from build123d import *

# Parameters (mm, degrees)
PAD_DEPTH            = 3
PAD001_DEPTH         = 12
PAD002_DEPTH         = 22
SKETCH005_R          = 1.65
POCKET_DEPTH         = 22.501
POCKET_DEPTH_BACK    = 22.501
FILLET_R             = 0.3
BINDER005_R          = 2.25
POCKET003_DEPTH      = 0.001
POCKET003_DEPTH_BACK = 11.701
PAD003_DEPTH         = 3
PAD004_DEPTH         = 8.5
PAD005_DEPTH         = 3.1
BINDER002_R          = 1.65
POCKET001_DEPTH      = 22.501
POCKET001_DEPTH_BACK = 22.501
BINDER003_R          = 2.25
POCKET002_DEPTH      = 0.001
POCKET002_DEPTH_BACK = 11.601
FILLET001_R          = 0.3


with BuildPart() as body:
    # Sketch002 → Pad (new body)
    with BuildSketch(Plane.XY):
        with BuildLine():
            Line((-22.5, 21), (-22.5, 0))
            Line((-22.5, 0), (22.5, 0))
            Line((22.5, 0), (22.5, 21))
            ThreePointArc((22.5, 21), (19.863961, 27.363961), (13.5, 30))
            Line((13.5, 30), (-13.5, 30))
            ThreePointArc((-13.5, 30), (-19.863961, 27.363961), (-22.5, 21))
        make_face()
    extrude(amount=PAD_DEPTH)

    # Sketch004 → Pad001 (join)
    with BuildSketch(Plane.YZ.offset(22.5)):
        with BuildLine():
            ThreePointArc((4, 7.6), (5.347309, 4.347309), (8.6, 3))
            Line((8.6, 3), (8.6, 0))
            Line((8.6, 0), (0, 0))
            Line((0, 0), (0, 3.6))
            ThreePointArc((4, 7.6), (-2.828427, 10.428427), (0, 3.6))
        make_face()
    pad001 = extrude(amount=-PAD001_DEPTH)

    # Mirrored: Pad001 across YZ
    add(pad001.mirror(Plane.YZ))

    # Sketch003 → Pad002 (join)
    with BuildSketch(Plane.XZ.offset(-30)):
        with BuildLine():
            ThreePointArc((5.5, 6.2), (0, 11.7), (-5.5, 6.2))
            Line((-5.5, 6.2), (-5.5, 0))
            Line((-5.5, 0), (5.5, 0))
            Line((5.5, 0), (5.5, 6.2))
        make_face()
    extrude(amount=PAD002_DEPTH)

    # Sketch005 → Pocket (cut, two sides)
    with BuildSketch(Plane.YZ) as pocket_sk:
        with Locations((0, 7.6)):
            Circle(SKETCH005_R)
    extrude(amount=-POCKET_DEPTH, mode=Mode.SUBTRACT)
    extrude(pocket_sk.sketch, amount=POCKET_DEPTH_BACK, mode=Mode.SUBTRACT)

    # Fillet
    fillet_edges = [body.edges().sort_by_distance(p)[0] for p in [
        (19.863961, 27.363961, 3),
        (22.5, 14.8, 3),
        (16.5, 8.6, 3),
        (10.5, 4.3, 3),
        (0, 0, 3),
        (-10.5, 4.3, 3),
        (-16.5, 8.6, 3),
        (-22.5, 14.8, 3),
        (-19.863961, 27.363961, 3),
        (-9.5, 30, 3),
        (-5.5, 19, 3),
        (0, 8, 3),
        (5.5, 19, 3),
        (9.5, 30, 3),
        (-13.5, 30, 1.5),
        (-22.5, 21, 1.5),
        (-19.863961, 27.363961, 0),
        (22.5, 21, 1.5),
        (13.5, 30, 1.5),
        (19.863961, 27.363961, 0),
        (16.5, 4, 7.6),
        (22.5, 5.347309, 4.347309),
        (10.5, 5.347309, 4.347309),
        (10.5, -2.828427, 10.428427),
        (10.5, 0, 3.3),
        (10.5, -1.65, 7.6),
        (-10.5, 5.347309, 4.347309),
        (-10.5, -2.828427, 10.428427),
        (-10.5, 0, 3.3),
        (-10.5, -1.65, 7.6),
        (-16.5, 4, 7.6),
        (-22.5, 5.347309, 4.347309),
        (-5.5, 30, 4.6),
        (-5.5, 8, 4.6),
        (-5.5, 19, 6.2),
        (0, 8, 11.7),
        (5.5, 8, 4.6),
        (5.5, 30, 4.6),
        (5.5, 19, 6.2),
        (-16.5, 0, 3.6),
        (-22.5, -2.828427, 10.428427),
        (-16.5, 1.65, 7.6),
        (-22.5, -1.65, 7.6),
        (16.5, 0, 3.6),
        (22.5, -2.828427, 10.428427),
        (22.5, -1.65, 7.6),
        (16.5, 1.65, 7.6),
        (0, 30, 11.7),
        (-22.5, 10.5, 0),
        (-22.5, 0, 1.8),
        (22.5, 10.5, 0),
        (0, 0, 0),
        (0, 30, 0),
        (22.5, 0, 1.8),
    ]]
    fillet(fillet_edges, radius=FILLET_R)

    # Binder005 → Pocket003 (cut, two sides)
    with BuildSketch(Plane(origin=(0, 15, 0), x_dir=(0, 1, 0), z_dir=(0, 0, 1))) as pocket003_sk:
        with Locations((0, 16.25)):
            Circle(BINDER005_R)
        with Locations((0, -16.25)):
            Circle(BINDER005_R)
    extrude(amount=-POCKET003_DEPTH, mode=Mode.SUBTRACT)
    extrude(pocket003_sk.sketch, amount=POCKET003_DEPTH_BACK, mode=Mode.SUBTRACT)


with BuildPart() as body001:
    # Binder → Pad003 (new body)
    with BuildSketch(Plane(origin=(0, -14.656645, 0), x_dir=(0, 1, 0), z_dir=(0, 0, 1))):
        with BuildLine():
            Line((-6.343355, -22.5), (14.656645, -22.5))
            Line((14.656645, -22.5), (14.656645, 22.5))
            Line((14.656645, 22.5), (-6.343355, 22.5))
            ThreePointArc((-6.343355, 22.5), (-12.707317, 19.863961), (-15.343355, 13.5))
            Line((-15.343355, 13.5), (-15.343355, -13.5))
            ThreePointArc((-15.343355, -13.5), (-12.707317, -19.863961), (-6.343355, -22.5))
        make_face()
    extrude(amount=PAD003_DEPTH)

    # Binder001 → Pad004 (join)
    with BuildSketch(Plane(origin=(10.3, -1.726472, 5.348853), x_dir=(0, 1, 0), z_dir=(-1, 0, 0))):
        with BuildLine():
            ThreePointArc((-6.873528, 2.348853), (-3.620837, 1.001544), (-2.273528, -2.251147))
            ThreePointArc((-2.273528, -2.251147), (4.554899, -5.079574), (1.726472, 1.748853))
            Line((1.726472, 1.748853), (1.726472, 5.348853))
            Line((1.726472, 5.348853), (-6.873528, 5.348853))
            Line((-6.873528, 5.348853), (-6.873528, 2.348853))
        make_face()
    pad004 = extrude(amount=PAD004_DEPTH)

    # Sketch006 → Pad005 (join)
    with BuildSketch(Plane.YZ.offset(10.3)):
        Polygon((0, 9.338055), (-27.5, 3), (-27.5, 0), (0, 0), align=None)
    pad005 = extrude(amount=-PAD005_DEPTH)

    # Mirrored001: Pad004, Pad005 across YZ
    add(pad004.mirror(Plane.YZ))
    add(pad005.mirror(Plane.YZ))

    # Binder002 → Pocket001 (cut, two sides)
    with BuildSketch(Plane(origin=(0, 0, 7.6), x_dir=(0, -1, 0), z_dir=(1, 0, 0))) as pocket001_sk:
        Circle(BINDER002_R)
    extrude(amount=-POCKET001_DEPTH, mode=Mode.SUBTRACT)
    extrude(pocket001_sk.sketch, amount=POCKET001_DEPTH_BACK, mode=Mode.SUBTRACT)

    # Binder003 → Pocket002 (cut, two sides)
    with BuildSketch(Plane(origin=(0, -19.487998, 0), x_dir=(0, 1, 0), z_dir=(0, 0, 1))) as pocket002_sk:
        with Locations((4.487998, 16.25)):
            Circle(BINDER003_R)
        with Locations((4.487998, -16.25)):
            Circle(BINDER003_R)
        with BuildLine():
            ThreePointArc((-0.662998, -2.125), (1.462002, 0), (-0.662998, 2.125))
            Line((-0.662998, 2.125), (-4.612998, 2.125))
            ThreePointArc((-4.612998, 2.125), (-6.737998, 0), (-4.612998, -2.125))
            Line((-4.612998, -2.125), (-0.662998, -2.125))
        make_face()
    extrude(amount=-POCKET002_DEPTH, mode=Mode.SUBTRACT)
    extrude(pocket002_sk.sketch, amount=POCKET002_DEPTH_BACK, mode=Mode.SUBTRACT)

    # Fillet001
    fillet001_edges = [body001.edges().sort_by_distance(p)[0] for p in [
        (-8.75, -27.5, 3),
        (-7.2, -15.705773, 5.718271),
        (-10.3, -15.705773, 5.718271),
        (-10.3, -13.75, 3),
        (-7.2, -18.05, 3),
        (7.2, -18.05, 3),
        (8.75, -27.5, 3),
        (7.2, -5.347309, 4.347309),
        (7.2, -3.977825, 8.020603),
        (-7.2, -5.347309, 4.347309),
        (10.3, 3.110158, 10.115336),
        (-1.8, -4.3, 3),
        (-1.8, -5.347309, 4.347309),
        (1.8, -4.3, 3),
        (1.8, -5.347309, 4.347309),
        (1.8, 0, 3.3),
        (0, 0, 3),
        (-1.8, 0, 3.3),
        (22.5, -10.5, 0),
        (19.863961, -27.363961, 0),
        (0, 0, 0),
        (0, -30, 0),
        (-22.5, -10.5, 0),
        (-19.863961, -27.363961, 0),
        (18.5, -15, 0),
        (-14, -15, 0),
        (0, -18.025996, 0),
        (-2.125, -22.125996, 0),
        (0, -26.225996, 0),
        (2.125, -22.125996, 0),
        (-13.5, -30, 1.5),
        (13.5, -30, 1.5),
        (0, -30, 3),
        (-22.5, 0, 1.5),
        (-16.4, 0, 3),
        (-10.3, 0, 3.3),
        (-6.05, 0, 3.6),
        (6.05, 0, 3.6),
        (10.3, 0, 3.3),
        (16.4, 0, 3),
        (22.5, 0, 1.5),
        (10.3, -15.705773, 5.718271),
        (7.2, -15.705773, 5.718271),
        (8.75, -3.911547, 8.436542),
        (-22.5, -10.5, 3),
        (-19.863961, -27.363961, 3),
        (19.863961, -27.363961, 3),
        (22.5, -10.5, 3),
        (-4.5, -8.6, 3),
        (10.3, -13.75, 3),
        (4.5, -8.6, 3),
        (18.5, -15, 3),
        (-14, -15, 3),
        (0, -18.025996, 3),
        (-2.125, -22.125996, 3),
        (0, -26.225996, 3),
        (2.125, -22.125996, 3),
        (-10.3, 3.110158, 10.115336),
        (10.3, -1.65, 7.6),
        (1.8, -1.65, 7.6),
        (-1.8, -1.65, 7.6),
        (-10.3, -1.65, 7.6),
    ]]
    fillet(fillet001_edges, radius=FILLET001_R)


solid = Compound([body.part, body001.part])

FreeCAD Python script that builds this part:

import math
import FreeCAD as App
import Part
import Sketcher
Q = App.Units.Quantity


def edges_at(feature, points):
    """Names of the edges that pass closest to the given points."""
    edges = feature.Shape.Edges
    near = lambda p: min(range(len(edges)), key=lambda i: edges[i].distToShape(Part.Vertex(*p))[0])
    return sorted({f"Edge{near(p) + 1}" for p in points})


def add_polygon(sketch, points):
    """Adds a closed chain of lines whose ends are joined by coincident constraints."""
    first, n = sketch.GeometryCount, len(points)
    for a, b in zip(points, points[1:] + points[:1]):
        sketch.addGeometry(Part.LineSegment(App.Vector(*a, 0), App.Vector(*b, 0)), False)
    for i in range(n):
        sketch.addConstraint(Sketcher.Constraint("Coincident", first + i, 2, first + (i + 1) % n, 1))

doc = App.newDocument("Part")
params = doc.addObject("Spreadsheet::Sheet", "Params")
for row, (alias, value) in enumerate([
    ("sketch1_radius", "9 mm"),
    ("sketch1_width", "45 mm"),
    ("sketch1_height", "21 mm"),
    ("pad1_length", "3 mm"),
    ("sketch2_radius", "4 mm"),
    ("sketch2_radius2", "4.600001 mm"),
    ("sketch2_height", "3 mm"),
    ("pad2_length", "12 mm"),
    ("sketch3_radius", "5.5 mm"),
    ("sketch3_height", "6.2 mm"),
    ("pad3_length", "22 mm"),
    ("sketch4_diameter", "3.3 mm"),
    ("fillet_radius", "0.3 mm"),
    ("sketch5_diameter", "4.5 mm"),
    ("sketch6_radius", "8.999998 mm"),
    ("sketch6_width", "45 mm"),
    ("sketch6_height", "21 mm"),
    ("pad4_length", "3 mm"),
    ("sketch7_radius", "4 mm"),
    ("sketch7_radius2", "4.600001 mm"),
    ("sketch7_height", "3 mm"),
    ("pad5_length", "8.5 mm"),
    ("sketch8_height", "3 mm"),
    ("sketch8_width", "27.5 mm"),
    ("pad6_length", "3.1 mm"),
    ("sketch9_diameter", "3.3 mm"),
    ("sketch10_diameter", "4.5 mm"),
    ("sketch10_height", "3.95 mm"),
    ("fillet2_radius", "0.3 mm"),
], start=1):
    params.set(f"A{row}", alias)
    params.set(f"B{row}", "=" + value)
    params.setAlias(f"B{row}", alias)

body = doc.addObject("PartDesign::Body", "Body")

# Sketch on XY plane
sketch1 = doc.addObject("Sketcher::SketchObject", "Sketch")
body.addObject(sketch1)
sketch1.AttachmentSupport = (doc.XY_Plane, [""])
sketch1.MapMode = "FlatFace"
sketch1.addGeometry(Part.LineSegment(App.Vector(-22, 21, 0), App.Vector(-22, 0, 0)), False)
sketch1.addGeometry(Part.LineSegment(App.Vector(-22, 0, 0), App.Vector(22, 0, 0)), False)
sketch1.addGeometry(Part.LineSegment(App.Vector(22, 0, 0), App.Vector(22, 21, 0)), False)
sketch1.addGeometry(Part.ArcOfCircle(Part.Circle(App.Vector(13, 21, 0), App.Vector(0, 0, 1), 9), math.radians(0), math.radians(90)), False)
sketch1.addGeometry(Part.LineSegment(App.Vector(14, 30, 0), App.Vector(-14, 30, 0)), False)
sketch1.addGeometry(Part.ArcOfCircle(Part.Circle(App.Vector(-13, 21, 0), App.Vector(0, 0, 1), 9), math.radians(90), math.radians(180)), False)
sketch1.addConstraint(Sketcher.Constraint("Coincident", 0, 2, 1, 1))
sketch1.addConstraint(Sketcher.Constraint("Coincident", 1, 2, 2, 1))
sketch1.addConstraint(Sketcher.Constraint("Tangent", 2, 2, 3, 1))
sketch1.addConstraint(Sketcher.Constraint("Tangent", 3, 2, 4, 1))
sketch1.addConstraint(Sketcher.Constraint("Tangent", 4, 2, 5, 1))
sketch1.addConstraint(Sketcher.Constraint("Tangent", 5, 2, 0, 1))
sketch1.addConstraint(Sketcher.Constraint("Vertical", 0))
sketch1.addConstraint(Sketcher.Constraint("Horizontal", 1))
sketch1.addConstraint(Sketcher.Constraint("Vertical", 2))
sketch1.addConstraint(Sketcher.Constraint("Horizontal", 4))
sketch1.addConstraint(Sketcher.Constraint("Equal", 3, 5))
sketch1.addConstraint(Sketcher.Constraint("Symmetric", 0, 2, 1, 2, -1, 1))
sketch1.addConstraint(Sketcher.Constraint("Radius", 3, Q("9 mm")))
sketch1.addConstraint(Sketcher.Constraint("DistanceX", 1, 1, 1, 2, Q("45 mm")))
sketch1.addConstraint(Sketcher.Constraint("DistanceY", 0, 2, 0, 1, Q("21 mm")))
sketch1.setExpression("Constraints[12]", "Params.sketch1_radius")
sketch1.setExpression("Constraints[13]", "Params.sketch1_width")
sketch1.setExpression("Constraints[14]", "Params.sketch1_height")
pad1 = doc.addObject("PartDesign::Pad", "Pad")
body.addObject(pad1)
pad1.Profile = sketch1
pad1.setExpression("Length", "Params.pad1_length")

# Sketch on YZ plane
sketch2 = doc.addObject("Sketcher::SketchObject", "Sketch001")
body.addObject(sketch2)
sketch2.AttachmentSupport = (doc.YZ_Plane, [""])
sketch2.MapMode = "FlatFace"
sketch2.AttachmentOffset = App.Placement(App.Vector(0, 0, 22.5), App.Rotation())
sketch2.addGeometry(Part.ArcOfCircle(Part.Circle(App.Vector(8.6, 7.6, 0), App.Vector(0, 0, 1), 4.6), math.radians(-180), math.radians(-90)), False)
sketch2.addGeometry(Part.ArcOfCircle(Part.Circle(App.Vector(0, 7.6, 0), App.Vector(0, 0, 1), 4), math.radians(0), math.radians(270)), False)
sketch2.addGeometry(Part.LineSegment(App.Vector(0, 3.6, 0), App.Vector(0, 0, 0)), False)
sketch2.addGeometry(Part.LineSegment(App.Vector(0, 0, 0), App.Vector(8.6, 0, 0)), False)
sketch2.addGeometry(Part.LineSegment(App.Vector(8.6, 0, 0), App.Vector(8.6, 3, 0)), False)
sketch2.addConstraint(Sketcher.Constraint("Tangent", 0, 1, 1, 1))
sketch2.addConstraint(Sketcher.Constraint("Coincident", 1, 2, 2, 1))
sketch2.addConstraint(Sketcher.Constraint("Coincident", 2, 2, 3, 1))
sketch2.addConstraint(Sketcher.Constraint("Coincident", 3, 2, 4, 1))
sketch2.addConstraint(Sketcher.Constraint("Coincident", 4, 2, 0, 2))
sketch2.addConstraint(Sketcher.Constraint("Vertical", 2))
sketch2.addConstraint(Sketcher.Constraint("Horizontal", 3))
sketch2.addConstraint(Sketcher.Constraint("Vertical", 4))
sketch2.addConstraint(Sketcher.Constraint("Coincident", 2, 2, -1, 1))
sketch2.addConstraint(Sketcher.Constraint("PointOnObject", 1, 3, -2))
sketch2.addConstraint(Sketcher.Constraint("Horizontal", 0, 3, 1, 3))
sketch2.addConstraint(Sketcher.Constraint("Vertical", 0, 3, 3, 2))
sketch2.addConstraint(Sketcher.Constraint("Radius", 1, Q("4 mm")))
sketch2.addConstraint(Sketcher.Constraint("Radius", 0, Q("4.600001 mm")))
sketch2.addConstraint(Sketcher.Constraint("DistanceY", 4, 1, 4, 2, Q("3 mm")))
sketch2.setExpression("Constraints[12]", "Params.sketch2_radius")
sketch2.setExpression("Constraints[13]", "Params.sketch2_radius2")
sketch2.setExpression("Constraints[14]", "Params.sketch2_height")
pad2 = doc.addObject("PartDesign::Pad", "Pad001")
body.addObject(pad2)
pad2.Profile = sketch2
pad2.setExpression("Length", "Params.pad2_length")
pad2.Reversed = True
doc.recompute()

mirrored = doc.addObject("PartDesign::Mirrored", "Mirrored")
body.addObject(mirrored)
mirrored.Originals = [pad2]
mirrored.MirrorPlane = (doc.YZ_Plane, [""])
body.Tip = mirrored

# Sketch on XZ plane
sketch3 = doc.addObject("Sketcher::SketchObject", "Sketch002")
body.addObject(sketch3)
sketch3.AttachmentSupport = (doc.XZ_Plane, [""])
sketch3.MapMode = "FlatFace"
sketch3.AttachmentOffset = App.Placement(App.Vector(0, 0, -30), App.Rotation())
sketch3.addGeometry(Part.ArcOfCircle(Part.Circle(App.Vector(0, 6, 0), App.Vector(0, 0, 1), 6), math.radians(0), math.radians(180)), False)
sketch3.addGeometry(Part.LineSegment(App.Vector(-6, 6, 0), App.Vector(-6, 0, 0)), False)
sketch3.addGeometry(Part.LineSegment(App.Vector(-6, 0, 0), App.Vector(6, 0, 0)), False)
sketch3.addGeometry(Part.LineSegment(App.Vector(6, 0, 0), App.Vector(6, 6, 0)), False)
sketch3.addConstraint(Sketcher.Constraint("Tangent", 0, 2, 1, 1))
sketch3.addConstraint(Sketcher.Constraint("Coincident", 1, 2, 2, 1))
sketch3.addConstraint(Sketcher.Constraint("Coincident", 2, 2, 3, 1))
sketch3.addConstraint(Sketcher.Constraint("Tangent", 3, 2, 0, 1))
sketch3.addConstraint(Sketcher.Constraint("Vertical", 1))
sketch3.addConstraint(Sketcher.Constraint("Horizontal", 2))
sketch3.addConstraint(Sketcher.Constraint("Vertical", 3))
sketch3.addConstraint(Sketcher.Constraint("Symmetric", 1, 2, 2, 2, -1, 1))
sketch3.addConstraint(Sketcher.Constraint("Radius", 0, Q("5.5 mm")))
sketch3.addConstraint(Sketcher.Constraint("DistanceY", 1, 2, 1, 1, Q("6.2 mm")))
sketch3.setExpression("Constraints[8]", "Params.sketch3_radius")
sketch3.setExpression("Constraints[9]", "Params.sketch3_height")
pad3 = doc.addObject("PartDesign::Pad", "Pad002")
body.addObject(pad3)
pad3.Profile = sketch3
pad3.setExpression("Length", "Params.pad3_length")

# Sketch on YZ plane
sketch4 = doc.addObject("Sketcher::SketchObject", "Sketch003")
body.addObject(sketch4)
sketch4.AttachmentSupport = (doc.YZ_Plane, [""])
sketch4.MapMode = "FlatFace"
sketch4.addGeometry(Part.Circle(App.Vector(0, 7.6, 0), App.Vector(0, 0, 1), 1.6), False)
sketch4.addConstraint(Sketcher.Constraint("PointOnObject", 0, 3, -2))
sketch4.addConstraint(Sketcher.Constraint("Diameter", 0, Q("3.3 mm")))
sketch4.addConstraint(Sketcher.Constraint("DistanceY", -1, 1, 0, 3, Q("7.6 mm")))
sketch4.setExpression("Constraints[1]", "Params.sketch4_diameter")
pocket1 = doc.addObject("PartDesign::Pocket", "Pocket")
body.addObject(pocket1)
pocket1.Profile = sketch4
pocket1.Type = "ThroughAll"
pocket1.Midplane = True
doc.recompute()

fillet = doc.addObject("PartDesign::Fillet", "Fillet")
body.addObject(fillet)
fillet.Base = (pocket1, ["Edge1"])
fillet.UseAllEdges = True
fillet.setExpression("Radius", "Params.fillet_radius")

# Sketch on XY plane
sketch5 = doc.addObject("Sketcher::SketchObject", "Sketch004")
body.addObject(sketch5)
sketch5.AttachmentSupport = (doc.XY_Plane, [""])
sketch5.MapMode = "FlatFace"
sketch5.addGeometry(Part.Circle(App.Vector(-16.2, 15, 0), App.Vector(0, 0, 1), 2.2), False)
sketch5.addGeometry(Part.Circle(App.Vector(16.2, 15, 0), App.Vector(0, 0, 1), 2.2), False)
sketch5.addConstraint(Sketcher.Constraint("Equal", 0, 1))
sketch5.addConstraint(Sketcher.Constraint("Symmetric", 0, 3, 1, 3, -2))
sketch5.addConstraint(Sketcher.Constraint("Diameter", 0, Q("4.5 mm")))
sketch5.addConstraint(Sketcher.Constraint("DistanceY", -1, 1, 0, 3, Q("15 mm")))
sketch5.addConstraint(Sketcher.Constraint("DistanceX", 0, 3, 1, 3, Q("32.5 mm")))
sketch5.setExpression("Constraints[2]", "Params.sketch5_diameter")
pocket2 = doc.addObject("PartDesign::Pocket", "Pocket001")
body.addObject(pocket2)
pocket2.Profile = sketch5
pocket2.Type = "ThroughAll"
pocket2.Midplane = True
body2 = doc.addObject("PartDesign::Body", "Body001")

# Sketch on XY plane
sketch6 = doc.addObject("Sketcher::SketchObject", "Sketch005")
body2.addObject(sketch6)
sketch6.AttachmentSupport = (doc.getObject("XY_Plane001"), [""])
sketch6.MapMode = "FlatFace"
sketch6.addGeometry(Part.LineSegment(App.Vector(22, -21, 0), App.Vector(22, 0, 0)), False)
sketch6.addGeometry(Part.LineSegment(App.Vector(22, 0, 0), App.Vector(-22, 0, 0)), False)
sketch6.addGeometry(Part.LineSegment(App.Vector(-22, 0, 0), App.Vector(-22, -21, 0)), False)
sketch6.addGeometry(Part.ArcOfCircle(Part.Circle(App.Vector(-14, -21, 0), App.Vector(0, 0, 1), 9), math.radians(180), math.radians(270)), False)
sketch6.addGeometry(Part.LineSegment(App.Vector(-14, -30, 0), App.Vector(14, -30, 0)), False)
sketch6.addGeometry(Part.ArcOfCircle(Part.Circle(App.Vector(14, -21, 0), App.Vector(0, 0, 1), 9), math.radians(-90), math.radians(0)), False)
sketch6.addConstraint(Sketcher.Constraint("Coincident", 0, 2, 1, 1))
sketch6.addConstraint(Sketcher.Constraint("Coincident", 1, 2, 2, 1))
sketch6.addConstraint(Sketcher.Constraint("Tangent", 2, 2, 3, 1))
sketch6.addConstraint(Sketcher.Constraint("Tangent", 3, 2, 4, 1))
sketch6.addConstraint(Sketcher.Constraint("Tangent", 4, 2, 5, 1))
sketch6.addConstraint(Sketcher.Constraint("Tangent", 5, 2, 0, 1))
sketch6.addConstraint(Sketcher.Constraint("Vertical", 0))
sketch6.addConstraint(Sketcher.Constraint("Horizontal", 1))
sketch6.addConstraint(Sketcher.Constraint("Vertical", 2))
sketch6.addConstraint(Sketcher.Constraint("Horizontal", 4))
sketch6.addConstraint(Sketcher.Constraint("Equal", 3, 5))
sketch6.addConstraint(Sketcher.Constraint("Symmetric", 0, 2, 1, 2, -1, 1))
sketch6.addConstraint(Sketcher.Constraint("Radius", 3, Q("8.999998 mm")))
sketch6.addConstraint(Sketcher.Constraint("DistanceX", 1, 2, 1, 1, Q("45 mm")))
sketch6.addConstraint(Sketcher.Constraint("DistanceY", 0, 1, 0, 2, Q("21 mm")))
sketch6.setExpression("Constraints[12]", "Params.sketch6_radius")
sketch6.setExpression("Constraints[13]", "Params.sketch6_width")
sketch6.setExpression("Constraints[14]", "Params.sketch6_height")
pad4 = doc.addObject("PartDesign::Pad", "Pad003")
body2.addObject(pad4)
pad4.Profile = sketch6
pad4.setExpression("Length", "Params.pad4_length")

# Sketch on YZ plane
sketch7 = doc.addObject("Sketcher::SketchObject", "Sketch006")
body2.addObject(sketch7)
sketch7.AttachmentSupport = (doc.getObject("YZ_Plane001"), [""])
sketch7.MapMode = "FlatFace"
sketch7.AttachmentOffset = App.Placement(App.Vector(0, 0, 10.3), App.Rotation())
sketch7.addGeometry(Part.ArcOfCircle(Part.Circle(App.Vector(-8.6, 7.6, 0), App.Vector(0, 0, 1), 4.6), math.radians(-90), math.radians(0)), False)
sketch7.addGeometry(Part.ArcOfCircle(Part.Circle(App.Vector(0, 7.6, 0), App.Vector(0, 0, 1), 4), math.radians(-90), math.radians(180)), False)
sketch7.addGeometry(Part.LineSegment(App.Vector(0, 3.6, 0), App.Vector(0, 0, 0)), False)
sketch7.addGeometry(Part.LineSegment(App.Vector(0, 0, 0), App.Vector(-8.6, 0, 0)), False)
sketch7.addGeometry(Part.LineSegment(App.Vector(-8.6, 0, 0), App.Vector(-8.6, 3, 0)), False)
sketch7.addConstraint(Sketcher.Constraint("Tangent", 0, 2, 1, 2))
sketch7.addConstraint(Sketcher.Constraint("Coincident", 1, 1, 2, 1))
sketch7.addConstraint(Sketcher.Constraint("Coincident", 2, 2, 3, 1))
sketch7.addConstraint(Sketcher.Constraint("Coincident", 3, 2, 4, 1))
sketch7.addConstraint(Sketcher.Constraint("Coincident", 4, 2, 0, 1))
sketch7.addConstraint(Sketcher.Constraint("Vertical", 2))
sketch7.addConstraint(Sketcher.Constraint("Horizontal", 3))
sketch7.addConstraint(Sketcher.Constraint("Vertical", 4))
sketch7.addConstraint(Sketcher.Constraint("Coincident", 2, 2, -1, 1))
sketch7.addConstraint(Sketcher.Constraint("PointOnObject", 1, 3, -2))
sketch7.addConstraint(Sketcher.Constraint("Horizontal", 0, 3, 1, 3))
sketch7.addConstraint(Sketcher.Constraint("Vertical", 0, 3, 3, 2))
sketch7.addConstraint(Sketcher.Constraint("Radius", 1, Q("4 mm")))
sketch7.addConstraint(Sketcher.Constraint("Radius", 0, Q("4.600001 mm")))
sketch7.addConstraint(Sketcher.Constraint("DistanceY", 4, 1, 4, 2, Q("3 mm")))
sketch7.setExpression("Constraints[12]", "Params.sketch7_radius")
sketch7.setExpression("Constraints[13]", "Params.sketch7_radius2")
sketch7.setExpression("Constraints[14]", "Params.sketch7_height")
pad5 = doc.addObject("PartDesign::Pad", "Pad004")
body2.addObject(pad5)
pad5.Profile = sketch7
pad5.setExpression("Length", "Params.pad5_length")
pad5.Reversed = True

# Sketch on YZ plane
sketch8 = doc.addObject("Sketcher::SketchObject", "Sketch007")
body2.addObject(sketch8)
sketch8.AttachmentSupport = (doc.getObject("YZ_Plane001"), [""])
sketch8.MapMode = "FlatFace"
sketch8.AttachmentOffset = App.Placement(App.Vector(0, 0, 10.3), App.Rotation())
add_polygon(sketch8, [(0, 9.3), (-27.5, 3), (-27.5, 0), (0, 0)])  # lines 0-3
sketch8.addConstraint(Sketcher.Constraint("Vertical", 1))
sketch8.addConstraint(Sketcher.Constraint("Horizontal", 2))
sketch8.addConstraint(Sketcher.Constraint("Vertical", 3))
sketch8.addConstraint(Sketcher.Constraint("Coincident", 2, 2, -1, 1))
sketch8.addConstraint(Sketcher.Constraint("DistanceY", 1, 2, 1, 1, Q("3 mm")))
sketch8.addConstraint(Sketcher.Constraint("DistanceX", 2, 1, 2, 2, Q("27.5 mm")))
sketch8.addConstraint(Sketcher.Constraint("Distance", 0, Q("28.220931 mm")))
sketch8.setExpression("Constraints[8]", "Params.sketch8_height")
sketch8.setExpression("Constraints[9]", "Params.sketch8_width")
pad6 = doc.addObject("PartDesign::Pad", "Pad005")
body2.addObject(pad6)
pad6.Profile = sketch8
pad6.setExpression("Length", "Params.pad6_length")
pad6.Reversed = True
doc.recompute()

mirrored2 = doc.addObject("PartDesign::Mirrored", "Mirrored001")
body2.addObject(mirrored2)
mirrored2.Originals = [pad5, pad6]
mirrored2.MirrorPlane = (doc.getObject("YZ_Plane001"), [""])
body2.Tip = mirrored2

# Sketch on YZ plane
sketch9 = doc.addObject("Sketcher::SketchObject", "Sketch008")
body2.addObject(sketch9)
sketch9.AttachmentSupport = (doc.getObject("YZ_Plane001"), [""])
sketch9.MapMode = "FlatFace"
sketch9.addGeometry(Part.Circle(App.Vector(0, 7.6, 0), App.Vector(0, 0, 1), 1.6), False)
sketch9.addConstraint(Sketcher.Constraint("PointOnObject", 0, 3, -2))
sketch9.addConstraint(Sketcher.Constraint("Diameter", 0, Q("3.3 mm")))
sketch9.addConstraint(Sketcher.Constraint("DistanceY", -1, 1, 0, 3, Q("7.6 mm")))
sketch9.setExpression("Constraints[1]", "Params.sketch9_diameter")
pocket3 = doc.addObject("PartDesign::Pocket", "Pocket002")
body2.addObject(pocket3)
pocket3.Profile = sketch9
pocket3.Type = "ThroughAll"
pocket3.Midplane = True

# Sketch on XY plane
sketch10 = doc.addObject("Sketcher::SketchObject", "Sketch009")
body2.addObject(sketch10)
sketch10.AttachmentSupport = (doc.getObject("XY_Plane001"), [""])
sketch10.MapMode = "FlatFace"
sketch10.addGeometry(Part.Circle(App.Vector(-16.2, -15, 0), App.Vector(0, 0, 1), 2.2), False)
sketch10.addGeometry(Part.Circle(App.Vector(16.2, -15, 0), App.Vector(0, 0, 1), 2.2), False)
sketch10.addGeometry(Part.ArcOfCircle(Part.Circle(App.Vector(0, -20.2, 0), App.Vector(0, 0, 1), 2.1), math.radians(0), math.radians(180)), False)
sketch10.addGeometry(Part.LineSegment(App.Vector(-2.1, -20.2, 0), App.Vector(-2.1, -24.1, 0)), False)
sketch10.addGeometry(Part.ArcOfCircle(Part.Circle(App.Vector(0, -24.1, 0), App.Vector(0, 0, 1), 2.1), math.radians(180), math.radians(360)), False)
sketch10.addGeometry(Part.LineSegment(App.Vector(2.1, -24.1, 0), App.Vector(2.1, -20.2, 0)), False)
sketch10.addConstraint(Sketcher.Constraint("Tangent", 2, 2, 3, 1))
sketch10.addConstraint(Sketcher.Constraint("Tangent", 3, 2, 4, 1))
sketch10.addConstraint(Sketcher.Constraint("Tangent", 4, 2, 5, 1))
sketch10.addConstraint(Sketcher.Constraint("Tangent", 5, 2, 2, 1))
sketch10.addConstraint(Sketcher.Constraint("Vertical", 3))
sketch10.addConstraint(Sketcher.Constraint("Vertical", 5))
sketch10.addConstraint(Sketcher.Constraint("Equal", 0, 1))
sketch10.addConstraint(Sketcher.Constraint("Symmetric", 0, 3, 1, 3, -2))
sketch10.addConstraint(Sketcher.Constraint("PointOnObject", 2, 3, -2))
sketch10.addConstraint(Sketcher.Constraint("Diameter", 0, Q("4.5 mm")))
sketch10.addConstraint(Sketcher.Constraint("DistanceY", 0, 3, -1, 1, Q("15 mm")))
sketch10.addConstraint(Sketcher.Constraint("Radius", 2, Q("2.125 mm")))
sketch10.addConstraint(Sketcher.Constraint("DistanceY", 3, 2, 3, 1, Q("3.95 mm")))
sketch10.addConstraint(Sketcher.Constraint("DistanceX", 0, 3, 1, 3, Q("32.5 mm")))
sketch10.addConstraint(Sketcher.Constraint("DistanceY", 2, 3, -1, 1, Q("20.150996 mm")))
sketch10.setExpression("Constraints[9]", "Params.sketch10_diameter")
sketch10.setExpression("Constraints[12]", "Params.sketch10_height")
pocket4 = doc.addObject("PartDesign::Pocket", "Pocket003")
body2.addObject(pocket4)
pocket4.Profile = sketch10
pocket4.Type = "ThroughAll"
pocket4.Midplane = True
doc.recompute()

fillet2 = doc.addObject("PartDesign::Fillet", "Fillet001")
body2.addObject(fillet2)
fillet2.Base = (pocket4, edges_at(pocket4, [
    (-8.75, -27.5, 3),
    (-7.2, -15.706, 5.718),
    (-10.3, -15.706, 5.718),
    (-10.3, -13.75, 3),
    (-7.2, -18.05, 3),
    (7.2, -18.05, 3),
    (8.75, -27.5, 3),
    (7.2, -5.347, 4.347),
    (7.2, -3.978, 8.021),
    (-7.2, -5.347, 4.347),
    (10.3, 3.11, 10.115),
    (-1.8, -4.3, 3),
    (-1.8, -5.347, 4.347),
    (1.8, -4.3, 3),
    (1.8, -5.347, 4.347),
    (1.8, 0, 3.3),
    (0, 0, 3),
    (-1.8, 0, 3.3),
    (22.5, -10.5, 0),
    (19.864, -27.364, 0),
    (0, 0, 0),
    (0, -30, 0),
    (-22.5, -10.5, 0),
    (-19.864, -27.364, 0),
    (16.25, -17.25, 0),
    (-16.25, -17.25, 0),
    (0, -18.026, 0),
    (-2.125, -22.126, 0),
    (0, -26.226, 0),
    (2.125, -22.126, 0),
    (-13.5, -30, 1.5),
    (13.5, -30, 1.5),
    (0, -30, 3),
    (-22.5, 0, 1.5),
    (-16.4, 0, 3),
    (-10.3, 0, 3.3),
    (-6.05, 0, 3.6),
    (6.05, 0, 3.6),
    (10.3, 0, 3.3),
    (16.4, 0, 3),
    (22.5, 0, 1.5),
    (10.3, -15.706, 5.718),
    (7.2, -15.706, 5.718),
    (8.75, -3.912, 8.437),
    (-22.5, -10.5, 3),
    (-19.864, -27.364, 3),
    (19.864, -27.364, 3),
    (22.5, -10.5, 3),
    (-4.5, -8.6, 3),
    (10.3, -13.75, 3),
    (4.5, -8.6, 3),
    (16.25, -17.25, 3),
    (-16.25, -17.25, 3),
    (0, -18.026, 3),
    (-2.125, -22.126, 3),
    (0, -26.226, 3),
    (2.125, -22.126, 3),
    (-10.3, 3.11, 10.115),
    (10.3, 1.65, 7.6),
    (1.8, 1.65, 7.6),
    (-1.8, 1.65, 7.6),
    (-10.3, 1.65, 7.6),
]))
fillet2.setExpression("Radius", "Params.fillet2_radius")

doc.recompute()
